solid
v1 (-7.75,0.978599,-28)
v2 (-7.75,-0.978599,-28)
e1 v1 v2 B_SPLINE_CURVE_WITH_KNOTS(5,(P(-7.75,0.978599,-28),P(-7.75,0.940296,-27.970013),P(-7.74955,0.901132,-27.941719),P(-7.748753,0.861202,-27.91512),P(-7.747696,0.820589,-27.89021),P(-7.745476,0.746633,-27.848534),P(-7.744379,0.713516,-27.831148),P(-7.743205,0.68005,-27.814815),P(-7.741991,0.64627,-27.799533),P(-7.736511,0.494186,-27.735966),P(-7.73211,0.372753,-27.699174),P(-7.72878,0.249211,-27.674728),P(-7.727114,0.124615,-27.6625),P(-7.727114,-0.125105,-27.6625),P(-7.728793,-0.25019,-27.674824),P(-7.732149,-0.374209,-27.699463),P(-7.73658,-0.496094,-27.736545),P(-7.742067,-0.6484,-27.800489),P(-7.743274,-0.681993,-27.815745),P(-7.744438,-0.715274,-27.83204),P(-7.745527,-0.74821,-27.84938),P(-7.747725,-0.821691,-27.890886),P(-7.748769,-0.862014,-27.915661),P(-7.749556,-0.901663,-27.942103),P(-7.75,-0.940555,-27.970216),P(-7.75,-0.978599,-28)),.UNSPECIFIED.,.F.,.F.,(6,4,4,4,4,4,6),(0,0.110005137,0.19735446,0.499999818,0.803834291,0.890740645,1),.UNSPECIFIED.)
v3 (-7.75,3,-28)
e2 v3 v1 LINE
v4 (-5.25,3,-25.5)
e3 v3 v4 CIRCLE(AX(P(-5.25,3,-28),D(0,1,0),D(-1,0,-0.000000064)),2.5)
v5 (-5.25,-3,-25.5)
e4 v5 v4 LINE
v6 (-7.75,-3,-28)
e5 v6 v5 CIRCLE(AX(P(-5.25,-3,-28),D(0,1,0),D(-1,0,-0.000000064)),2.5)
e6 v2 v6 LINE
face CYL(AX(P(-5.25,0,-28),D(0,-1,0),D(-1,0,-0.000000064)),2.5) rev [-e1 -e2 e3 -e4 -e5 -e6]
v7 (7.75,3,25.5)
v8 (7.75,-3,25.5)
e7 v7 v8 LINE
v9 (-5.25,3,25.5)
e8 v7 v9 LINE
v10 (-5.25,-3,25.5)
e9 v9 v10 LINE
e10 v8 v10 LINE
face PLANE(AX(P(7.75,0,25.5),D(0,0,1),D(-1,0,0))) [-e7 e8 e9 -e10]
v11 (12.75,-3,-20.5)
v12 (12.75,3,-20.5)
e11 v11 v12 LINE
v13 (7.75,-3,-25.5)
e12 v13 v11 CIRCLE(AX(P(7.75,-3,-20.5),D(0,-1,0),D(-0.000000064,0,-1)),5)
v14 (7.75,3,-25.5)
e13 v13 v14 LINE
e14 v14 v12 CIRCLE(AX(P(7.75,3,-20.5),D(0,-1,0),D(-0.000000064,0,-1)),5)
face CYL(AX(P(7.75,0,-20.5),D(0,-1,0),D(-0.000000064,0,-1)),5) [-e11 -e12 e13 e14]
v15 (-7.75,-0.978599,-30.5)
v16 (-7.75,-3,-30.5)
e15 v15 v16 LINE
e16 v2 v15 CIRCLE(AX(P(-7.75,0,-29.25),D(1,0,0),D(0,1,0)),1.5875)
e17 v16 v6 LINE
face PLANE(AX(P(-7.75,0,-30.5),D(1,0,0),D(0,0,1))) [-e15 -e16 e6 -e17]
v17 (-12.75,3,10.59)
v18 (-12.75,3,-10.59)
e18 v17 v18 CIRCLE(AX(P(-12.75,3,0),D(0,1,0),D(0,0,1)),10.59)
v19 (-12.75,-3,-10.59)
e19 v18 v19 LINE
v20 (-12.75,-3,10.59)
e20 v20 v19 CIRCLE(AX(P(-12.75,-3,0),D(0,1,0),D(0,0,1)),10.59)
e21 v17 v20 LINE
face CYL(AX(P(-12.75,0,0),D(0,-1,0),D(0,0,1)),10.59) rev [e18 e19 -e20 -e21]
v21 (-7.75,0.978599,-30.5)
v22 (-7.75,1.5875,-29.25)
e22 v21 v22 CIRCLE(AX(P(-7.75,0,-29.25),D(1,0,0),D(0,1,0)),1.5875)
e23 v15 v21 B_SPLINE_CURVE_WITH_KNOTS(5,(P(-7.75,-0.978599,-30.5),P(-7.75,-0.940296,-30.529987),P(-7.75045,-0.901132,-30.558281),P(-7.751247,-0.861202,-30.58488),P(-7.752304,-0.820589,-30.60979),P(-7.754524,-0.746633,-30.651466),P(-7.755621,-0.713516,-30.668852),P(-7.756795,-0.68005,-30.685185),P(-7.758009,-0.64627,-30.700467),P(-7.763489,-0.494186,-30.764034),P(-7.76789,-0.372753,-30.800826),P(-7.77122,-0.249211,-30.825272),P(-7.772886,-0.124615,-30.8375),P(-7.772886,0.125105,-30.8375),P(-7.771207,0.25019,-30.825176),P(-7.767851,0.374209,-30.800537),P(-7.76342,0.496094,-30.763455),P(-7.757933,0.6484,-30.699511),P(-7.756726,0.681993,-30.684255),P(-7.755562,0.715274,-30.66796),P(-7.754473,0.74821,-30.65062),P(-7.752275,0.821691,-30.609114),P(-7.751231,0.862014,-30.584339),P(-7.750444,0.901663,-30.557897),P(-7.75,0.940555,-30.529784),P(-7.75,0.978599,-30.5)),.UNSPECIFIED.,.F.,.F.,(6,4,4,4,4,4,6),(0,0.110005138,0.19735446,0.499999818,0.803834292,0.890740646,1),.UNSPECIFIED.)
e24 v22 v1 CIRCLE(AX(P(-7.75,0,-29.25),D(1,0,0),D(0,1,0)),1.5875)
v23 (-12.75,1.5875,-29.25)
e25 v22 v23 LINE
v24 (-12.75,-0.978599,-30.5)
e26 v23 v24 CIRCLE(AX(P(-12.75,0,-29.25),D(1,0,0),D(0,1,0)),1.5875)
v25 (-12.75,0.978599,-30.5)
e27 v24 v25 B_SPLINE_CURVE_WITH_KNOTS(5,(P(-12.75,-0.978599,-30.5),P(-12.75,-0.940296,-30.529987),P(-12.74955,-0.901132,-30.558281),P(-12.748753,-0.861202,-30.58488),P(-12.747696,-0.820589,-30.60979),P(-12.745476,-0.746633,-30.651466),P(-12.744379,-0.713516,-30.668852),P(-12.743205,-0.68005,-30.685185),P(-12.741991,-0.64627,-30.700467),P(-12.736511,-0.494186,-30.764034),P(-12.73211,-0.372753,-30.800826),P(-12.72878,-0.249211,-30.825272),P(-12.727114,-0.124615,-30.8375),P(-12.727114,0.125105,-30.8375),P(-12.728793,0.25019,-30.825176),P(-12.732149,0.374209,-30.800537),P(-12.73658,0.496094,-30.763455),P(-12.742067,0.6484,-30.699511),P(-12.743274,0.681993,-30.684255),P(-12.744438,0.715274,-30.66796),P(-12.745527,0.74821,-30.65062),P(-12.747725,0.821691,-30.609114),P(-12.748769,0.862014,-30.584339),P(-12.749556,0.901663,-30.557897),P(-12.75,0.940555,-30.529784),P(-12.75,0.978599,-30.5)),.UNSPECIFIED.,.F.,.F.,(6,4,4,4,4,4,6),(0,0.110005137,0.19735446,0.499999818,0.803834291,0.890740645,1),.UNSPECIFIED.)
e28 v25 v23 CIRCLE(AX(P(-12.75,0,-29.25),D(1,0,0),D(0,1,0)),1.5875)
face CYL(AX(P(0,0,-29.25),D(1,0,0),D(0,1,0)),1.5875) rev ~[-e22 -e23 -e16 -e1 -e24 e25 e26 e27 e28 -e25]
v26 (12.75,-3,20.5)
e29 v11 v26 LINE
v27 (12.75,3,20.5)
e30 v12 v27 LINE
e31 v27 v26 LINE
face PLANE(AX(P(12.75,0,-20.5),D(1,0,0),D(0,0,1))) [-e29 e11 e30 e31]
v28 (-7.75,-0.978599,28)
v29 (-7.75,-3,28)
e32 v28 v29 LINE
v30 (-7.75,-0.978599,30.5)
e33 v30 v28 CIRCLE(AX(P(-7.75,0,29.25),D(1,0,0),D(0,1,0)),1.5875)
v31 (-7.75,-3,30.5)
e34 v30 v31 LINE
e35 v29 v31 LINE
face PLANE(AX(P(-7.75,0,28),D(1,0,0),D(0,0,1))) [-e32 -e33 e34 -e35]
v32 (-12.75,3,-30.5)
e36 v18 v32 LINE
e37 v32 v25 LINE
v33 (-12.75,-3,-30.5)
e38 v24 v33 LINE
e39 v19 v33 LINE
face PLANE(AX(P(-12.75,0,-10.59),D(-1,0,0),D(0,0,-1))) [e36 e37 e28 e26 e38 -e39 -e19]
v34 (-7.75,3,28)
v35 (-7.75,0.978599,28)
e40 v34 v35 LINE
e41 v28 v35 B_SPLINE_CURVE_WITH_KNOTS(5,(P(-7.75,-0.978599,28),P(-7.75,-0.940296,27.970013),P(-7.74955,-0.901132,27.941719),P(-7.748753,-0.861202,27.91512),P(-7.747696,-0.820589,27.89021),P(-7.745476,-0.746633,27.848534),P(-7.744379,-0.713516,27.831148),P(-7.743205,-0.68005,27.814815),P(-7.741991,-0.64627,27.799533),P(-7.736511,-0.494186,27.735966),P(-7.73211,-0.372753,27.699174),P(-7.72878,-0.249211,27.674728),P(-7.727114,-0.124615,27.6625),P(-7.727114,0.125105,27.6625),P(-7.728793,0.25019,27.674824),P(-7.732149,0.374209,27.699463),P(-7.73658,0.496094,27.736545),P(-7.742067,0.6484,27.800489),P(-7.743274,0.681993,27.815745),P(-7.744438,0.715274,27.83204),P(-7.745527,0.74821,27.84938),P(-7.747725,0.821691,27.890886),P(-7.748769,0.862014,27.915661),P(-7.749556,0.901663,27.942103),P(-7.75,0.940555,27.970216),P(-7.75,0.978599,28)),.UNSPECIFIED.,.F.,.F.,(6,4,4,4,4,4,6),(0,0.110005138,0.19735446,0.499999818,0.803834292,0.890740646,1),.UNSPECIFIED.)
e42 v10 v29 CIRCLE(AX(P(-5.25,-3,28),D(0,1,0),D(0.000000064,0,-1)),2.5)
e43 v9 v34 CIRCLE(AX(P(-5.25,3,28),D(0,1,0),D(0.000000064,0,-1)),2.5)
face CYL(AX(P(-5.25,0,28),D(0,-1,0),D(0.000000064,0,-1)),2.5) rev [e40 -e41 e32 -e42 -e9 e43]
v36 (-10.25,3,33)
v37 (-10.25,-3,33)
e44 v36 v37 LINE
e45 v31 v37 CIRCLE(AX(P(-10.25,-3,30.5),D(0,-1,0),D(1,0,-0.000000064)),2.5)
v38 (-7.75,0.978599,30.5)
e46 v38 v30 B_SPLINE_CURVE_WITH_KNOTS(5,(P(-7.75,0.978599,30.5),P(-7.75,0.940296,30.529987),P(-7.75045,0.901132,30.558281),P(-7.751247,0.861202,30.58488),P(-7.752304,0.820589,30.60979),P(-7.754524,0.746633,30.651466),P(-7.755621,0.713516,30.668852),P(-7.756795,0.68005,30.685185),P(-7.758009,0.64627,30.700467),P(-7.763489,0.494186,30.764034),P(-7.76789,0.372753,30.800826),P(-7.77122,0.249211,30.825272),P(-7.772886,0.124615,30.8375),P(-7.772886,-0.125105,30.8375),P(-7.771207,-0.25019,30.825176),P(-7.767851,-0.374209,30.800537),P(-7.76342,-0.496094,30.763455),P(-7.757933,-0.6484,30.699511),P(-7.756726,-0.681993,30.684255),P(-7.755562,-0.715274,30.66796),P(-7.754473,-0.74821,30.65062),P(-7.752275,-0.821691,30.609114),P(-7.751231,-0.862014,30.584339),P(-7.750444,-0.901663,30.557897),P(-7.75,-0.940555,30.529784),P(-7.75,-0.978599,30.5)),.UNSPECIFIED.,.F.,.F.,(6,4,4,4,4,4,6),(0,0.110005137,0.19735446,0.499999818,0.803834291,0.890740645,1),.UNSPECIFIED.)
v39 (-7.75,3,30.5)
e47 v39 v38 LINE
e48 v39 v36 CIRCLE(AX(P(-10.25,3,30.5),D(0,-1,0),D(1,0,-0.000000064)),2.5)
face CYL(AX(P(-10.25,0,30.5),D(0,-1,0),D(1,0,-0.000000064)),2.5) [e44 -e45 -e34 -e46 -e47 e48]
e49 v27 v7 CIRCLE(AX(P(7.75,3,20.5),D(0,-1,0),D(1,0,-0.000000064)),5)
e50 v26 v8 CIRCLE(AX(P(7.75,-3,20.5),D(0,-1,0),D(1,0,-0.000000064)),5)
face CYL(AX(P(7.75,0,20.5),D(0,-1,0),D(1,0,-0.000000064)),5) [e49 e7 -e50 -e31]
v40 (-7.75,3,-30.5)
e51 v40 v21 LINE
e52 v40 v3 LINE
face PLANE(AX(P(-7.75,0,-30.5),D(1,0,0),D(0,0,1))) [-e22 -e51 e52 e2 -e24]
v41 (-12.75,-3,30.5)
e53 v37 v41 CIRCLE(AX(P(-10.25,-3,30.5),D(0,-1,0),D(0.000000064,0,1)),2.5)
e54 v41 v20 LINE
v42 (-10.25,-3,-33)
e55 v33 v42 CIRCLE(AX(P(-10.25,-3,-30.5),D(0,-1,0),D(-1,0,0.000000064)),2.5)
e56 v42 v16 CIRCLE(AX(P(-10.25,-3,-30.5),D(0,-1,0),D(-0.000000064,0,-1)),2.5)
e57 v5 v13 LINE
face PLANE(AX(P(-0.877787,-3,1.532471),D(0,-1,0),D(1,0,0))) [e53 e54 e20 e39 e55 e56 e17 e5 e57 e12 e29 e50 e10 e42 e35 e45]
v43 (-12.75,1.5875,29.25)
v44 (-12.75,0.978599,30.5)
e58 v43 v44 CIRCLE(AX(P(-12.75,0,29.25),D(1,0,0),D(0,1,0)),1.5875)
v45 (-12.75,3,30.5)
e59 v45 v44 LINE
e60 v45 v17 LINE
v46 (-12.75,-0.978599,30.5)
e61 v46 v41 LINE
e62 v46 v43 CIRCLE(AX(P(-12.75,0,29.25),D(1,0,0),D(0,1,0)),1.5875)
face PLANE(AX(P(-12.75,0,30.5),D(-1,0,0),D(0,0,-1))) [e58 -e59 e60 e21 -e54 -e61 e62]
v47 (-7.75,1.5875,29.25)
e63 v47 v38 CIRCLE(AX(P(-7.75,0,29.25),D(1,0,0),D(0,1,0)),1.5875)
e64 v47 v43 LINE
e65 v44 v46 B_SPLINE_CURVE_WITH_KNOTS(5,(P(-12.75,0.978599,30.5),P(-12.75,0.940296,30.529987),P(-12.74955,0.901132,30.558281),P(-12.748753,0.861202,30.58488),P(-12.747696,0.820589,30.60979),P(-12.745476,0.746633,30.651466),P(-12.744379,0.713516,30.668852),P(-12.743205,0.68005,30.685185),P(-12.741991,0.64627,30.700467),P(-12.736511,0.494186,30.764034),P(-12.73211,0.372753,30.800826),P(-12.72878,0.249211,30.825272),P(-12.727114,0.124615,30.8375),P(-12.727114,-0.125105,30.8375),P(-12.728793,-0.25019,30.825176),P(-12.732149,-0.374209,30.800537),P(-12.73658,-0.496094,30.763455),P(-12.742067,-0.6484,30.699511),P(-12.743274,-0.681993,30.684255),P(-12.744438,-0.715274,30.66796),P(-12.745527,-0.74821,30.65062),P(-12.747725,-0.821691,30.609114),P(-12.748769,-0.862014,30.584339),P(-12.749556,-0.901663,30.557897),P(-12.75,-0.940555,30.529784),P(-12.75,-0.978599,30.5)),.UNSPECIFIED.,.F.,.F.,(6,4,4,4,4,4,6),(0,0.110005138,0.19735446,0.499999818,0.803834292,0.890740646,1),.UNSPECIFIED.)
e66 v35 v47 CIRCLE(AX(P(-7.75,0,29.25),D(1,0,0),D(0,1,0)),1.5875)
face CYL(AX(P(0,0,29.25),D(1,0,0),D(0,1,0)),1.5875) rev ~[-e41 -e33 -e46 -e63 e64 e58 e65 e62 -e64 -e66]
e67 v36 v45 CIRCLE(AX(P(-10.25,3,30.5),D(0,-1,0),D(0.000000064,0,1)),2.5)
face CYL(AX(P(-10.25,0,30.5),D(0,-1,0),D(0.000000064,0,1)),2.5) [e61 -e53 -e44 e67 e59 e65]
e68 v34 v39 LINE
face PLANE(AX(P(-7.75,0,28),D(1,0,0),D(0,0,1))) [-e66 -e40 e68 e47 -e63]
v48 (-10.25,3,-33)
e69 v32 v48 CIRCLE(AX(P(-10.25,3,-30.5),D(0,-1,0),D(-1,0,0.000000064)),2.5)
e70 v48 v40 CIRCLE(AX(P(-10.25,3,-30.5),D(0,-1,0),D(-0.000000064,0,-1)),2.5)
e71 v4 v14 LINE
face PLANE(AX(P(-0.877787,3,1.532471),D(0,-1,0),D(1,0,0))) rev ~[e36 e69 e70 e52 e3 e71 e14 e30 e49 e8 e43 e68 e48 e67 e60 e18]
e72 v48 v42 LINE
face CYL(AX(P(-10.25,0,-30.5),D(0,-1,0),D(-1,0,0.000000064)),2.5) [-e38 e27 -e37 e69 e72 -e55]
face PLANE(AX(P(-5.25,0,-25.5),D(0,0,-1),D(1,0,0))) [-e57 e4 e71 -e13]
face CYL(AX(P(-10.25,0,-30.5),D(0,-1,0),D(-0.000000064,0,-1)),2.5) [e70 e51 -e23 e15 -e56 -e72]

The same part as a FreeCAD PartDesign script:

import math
import FreeCAD as App
import Part
import Sketcher
from FreeCAD import Vector

doc = App.newDocument("Part")
body = doc.addObject("PartDesign::Body", "Body")

# Sketch on XZ plane
sketch1 = body.newObject("Sketcher::SketchObject", "Sketch")
sketch1.AttachmentSupport = (doc.getObject("XZ_Plane"), [""])
sketch1.MapMode = "FlatFace"
sketch1.addGeometry([
    Part.LineSegment(Vector(12.75, -20.5, 0), Vector(12.75, 20.5, 0)),  # 0
    Part.ArcOfCircle(Part.Circle(Vector(7.75, 20.5, 0), Vector(0, 0, 1), 5), math.radians(-0.000004), math.radians(90.000004)),  # 1
    Part.LineSegment(Vector(7.75, 25.5, 0), Vector(-5.25, 25.5, 0)),  # 2
    Part.ArcOfCircle(Part.Circle(Vector(-5.25, 28, 0), Vector(0, 0, 1), 2.5), math.radians(179.999996), math.radians(270.000004)),  # 3
    Part.LineSegment(Vector(-7.75, 28, 0), Vector(-7.75, 30.5, 0)),  # 4
    Part.ArcOfCircle(Part.Circle(Vector(-10.25, 30.5, 0), Vector(0, 0, 1), 2.5), math.radians(-0.000004), math.radians(90.000004)),  # 5
    Part.ArcOfCircle(Part.Circle(Vector(-10.25, 30.5, 0), Vector(0, 0, 1), 2.5), math.radians(89.999996), math.radians(180.000004)),  # 6
    Part.LineSegment(Vector(-12.75, 30.5, 0), Vector(-12.75, 10.59, 0)),  # 7
    Part.ArcOfCircle(Part.Circle(Vector(-12.75, 0, 0), Vector(0, 0, 1), 10.59), math.radians(-90), math.radians(90)),  # 8
    Part.LineSegment(Vector(-12.75, -10.59, 0), Vector(-12.75, -30.5, 0)),  # 9
    Part.ArcOfCircle(Part.Circle(Vector(-10.25, -30.5, 0), Vector(0, 0, 1), 2.5), math.radians(179.999996), math.radians(270.000004)),  # 10
    Part.ArcOfCircle(Part.Circle(Vector(-10.25, -30.5, 0), Vector(0, 0, 1), 2.5), math.radians(-90.000004), math.radians(0.000004)),  # 11
    Part.LineSegment(Vector(-7.75, -30.5, 0), Vector(-7.75, -28, 0)),  # 12
    Part.ArcOfCircle(Part.Circle(Vector(-5.25, -28, 0), Vector(0, 0, 1), 2.5), math.radians(89.999996), math.radians(180.000004)),  # 13
    Part.LineSegment(Vector(-5.25, -25.5, 0), Vector(7.75, -25.5, 0)),  # 14
    Part.ArcOfCircle(Part.Circle(Vector(7.75, -20.5, 0), Vector(0, 0, 1), 5), math.radians(-90.000004), math.radians(0.000004)),  # 15
], False)
sketch1.addConstraint([
    Sketcher.Constraint("Tangent", 0, 2, 1, 1),
    Sketcher.Constraint("Tangent", 1, 2, 2, 1),
    Sketcher.Constraint("Tangent", 2, 2, 3, 2),
    Sketcher.Constraint("Tangent", 3, 1, 4, 1),
    Sketcher.Constraint("Tangent", 4, 2, 5, 1),
    Sketcher.Constraint("Tangent", 5, 2, 6, 1),
    Sketcher.Constraint("Tangent", 6, 2, 7, 1),
    Sketcher.Constraint("Coincident", 7, 2, 8, 2),
    Sketcher.Constraint("Coincident", 8, 1, 9, 1),
    Sketcher.Constraint("Tangent", 9, 2, 10, 1),
    Sketcher.Constraint("Tangent", 10, 2, 11, 1),
    Sketcher.Constraint("Tangent", 11, 2, 12, 1),
    Sketcher.Constraint("Tangent", 12, 2, 13, 2),
    Sketcher.Constraint("Tangent", 13, 1, 14, 1),
    Sketcher.Constraint("Tangent", 14, 2, 15, 1),
    Sketcher.Constraint("Tangent", 15, 2, 0, 1),
    Sketcher.Constraint("Vertical", 0),
    Sketcher.Constraint("Horizontal", 2),
    Sketcher.Constraint("Vertical", 4),
    Sketcher.Constraint("Vertical", 7),
    Sketcher.Constraint("Vertical", 9),
    Sketcher.Constraint("Vertical", 12),
    Sketcher.Constraint("Horizontal", 14),
    Sketcher.Constraint("Equal", 3, 5),
    Sketcher.Constraint("Equal", 5, 6),
    Sketcher.Constraint("Equal", 6, 10),
    Sketcher.Constraint("Equal", 10, 11),
    Sketcher.Constraint("Equal", 11, 13),
    Sketcher.Constraint("Equal", 1, 15),
    Sketcher.Constraint("Symmetric", 5, 3, 10, 3, -1),
    Sketcher.Constraint("PointOnObject", 8, 3, -1),
    Sketcher.Constraint("Vertical", 11, 3, 5, 2),
    Sketcher.Constraint("Vertical", 8, 3, 6, 2),
    Sketcher.Constraint("Vertical", 5, 2, 10, 2),
    Sketcher.Constraint("Equal", 4, 12),
    Sketcher.Constraint("Radius", 1, 5.0),
    Sketcher.Constraint("Radius", 3, 2.5),
    Sketcher.Constraint("DistanceX", 2, 2, 2, 1, 13.0),
    Sketcher.Constraint("DistanceY", 0, 1, 0, 2, 41.0),
    Sketcher.Constraint("Radius", 8, 10.59),
    Sketcher.Constraint("DistanceY", 4, 1, 4, 2, 2.5),
    Sketcher.Constraint("DistanceX", -1, 1, 1, 3, 7.75),
])
pad1 = body.newObject("PartDesign::Pad", "Pad")
pad1.Profile = sketch1
pad1.Length = 6
pad1.Midplane = True

# Sketch on YZ plane
sketch2 = body.newObject("Sketcher::SketchObject", "Sketch001")
sketch2.AttachmentSupport = (doc.getObject("YZ_Plane"), [""])
sketch2.MapMode = "FlatFace"
sketch2.addGeometry([
    Part.Circle(Vector(0, 29.25, 0), Vector(0, 0, 1), 1.5875),
    Part.Circle(Vector(0, -29.25, 0), Vector(0, 0, 1), 1.5875),
], False)
sketch2.addConstraint([
    Sketcher.Constraint("Equal", 0, 1),
    Sketcher.Constraint("Symmetric", 0, 3, 1, 3, -1, 1),
    Sketcher.Constraint("PointOnObject", 0, 3, -2),
    Sketcher.Constraint("Diameter", 0, 3.175),
    Sketcher.Constraint("DistanceY", 1, 3, 0, 3, 58.5),
])
pocket1 = body.newObject("PartDesign::Pocket", "Pocket")
pocket1.Profile = sketch2
pocket1.Type = "ThroughAll"

doc.recompute()
